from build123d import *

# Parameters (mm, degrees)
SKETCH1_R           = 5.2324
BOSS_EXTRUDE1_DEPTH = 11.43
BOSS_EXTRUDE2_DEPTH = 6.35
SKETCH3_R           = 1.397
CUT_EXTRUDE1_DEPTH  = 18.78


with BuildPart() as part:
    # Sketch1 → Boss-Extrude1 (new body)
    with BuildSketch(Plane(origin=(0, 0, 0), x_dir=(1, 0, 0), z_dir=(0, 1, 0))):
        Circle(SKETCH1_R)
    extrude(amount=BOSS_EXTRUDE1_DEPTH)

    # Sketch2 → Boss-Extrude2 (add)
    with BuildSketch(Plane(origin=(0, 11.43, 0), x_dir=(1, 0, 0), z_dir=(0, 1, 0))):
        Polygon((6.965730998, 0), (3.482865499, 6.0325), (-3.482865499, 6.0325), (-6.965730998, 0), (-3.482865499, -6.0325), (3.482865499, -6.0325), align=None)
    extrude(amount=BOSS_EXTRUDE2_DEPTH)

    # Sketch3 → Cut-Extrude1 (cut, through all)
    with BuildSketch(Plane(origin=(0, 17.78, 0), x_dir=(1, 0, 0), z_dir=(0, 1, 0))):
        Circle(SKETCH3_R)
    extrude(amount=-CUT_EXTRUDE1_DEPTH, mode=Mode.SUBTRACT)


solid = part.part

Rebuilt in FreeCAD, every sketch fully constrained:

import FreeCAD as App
import Part
import Sketcher
Q = App.Units.Quantity


def add_polygon(sketch, points):
    """Adds a closed chain of lines whose ends are joined by coincident constraints."""
    first, n = sketch.GeometryCount, len(points)
    for a, b in zip(points, points[1:] + points[:1]):
        sketch.addGeometry(Part.LineSegment(App.Vector(*a, 0), App.Vector(*b, 0)), False)
    for i in range(n):
        sketch.addConstraint(Sketcher.Constraint("Coincident", first + i, 2, first + (i + 1) % n, 1))

doc = App.newDocument("Part")
body = doc.addObject("PartDesign::Body", "Body")

sketch1 = body.newObject("Sketcher::SketchObject", "Sketch")
sketch1.AttachmentSupport = (doc.getObject("XZ_Plane"), [""])
sketch1.MapMode = "FlatFace"
sketch1.addGeometry(Part.Circle(App.Vector(0, 0, 0), App.Vector(0, 0, 1), 5), False)
sketch1.addConstraint([
    Sketcher.Constraint("Coincident", 0, 3, -1, 1),
    Sketcher.Constraint("Diameter", 0, Q("0.412 in")),
])
pad1 = body.newObject("PartDesign::Pad", "Pad")
pad1.Profile = sketch1
pad1.Length = Q("0.45 in")
pad1.Reversed = True

sketch2 = body.newObject("Sketcher::SketchObject", "Sketch001")
sketch2.AttachmentSupport = (doc.getObject("XZ_Plane"), [""])
sketch2.MapMode = "FlatFace"
sketch2.AttachmentOffset = App.Placement(App.Vector(0, 0, -0.45 * 25.4), App.Rotation())
add_polygon(sketch2, [(7, 0), (3, -6), (-3, -6), (-7, 0), (-3, 6), (3, 6)])
sketch2.addConstraint([
    Sketcher.Constraint("Horizontal", 1),
    Sketcher.Constraint("Horizontal", 4),
    Sketcher.Constraint("Symmetric", 0, 2, 3, 2, -1, 1),
    Sketcher.Constraint("Symmetric", 2, 2, 5, 2, -1, 1),
    Sketcher.Constraint("PointOnObject", 2, 2, -1),
    Sketcher.Constraint("Parallel", 2, 5),
    Sketcher.Constraint("Vertical", 1, 2, 3, 2),
    Sketcher.Constraint("Angle", 0, Q("-120 deg")),
    Sketcher.Constraint("DistanceY", 1, 2, 3, 2, Q("0.475 in")),
    Sketcher.Constraint("DistanceX", 1, 2, 1, 1, 6.965731),
])
pad2 = body.newObject("PartDesign::Pad", "Pad001")
pad2.Profile = sketch2
pad2.Length = Q("0.25 in")
pad2.Reversed = True

sketch3 = body.newObject("Sketcher::SketchObject", "Sketch002")
sketch3.AttachmentSupport = (doc.getObject("XZ_Plane"), [""])
sketch3.MapMode = "FlatFace"
sketch3.AttachmentOffset = App.Placement(App.Vector(0, 0, -0.7 * 25.4), App.Rotation())
sketch3.addGeometry(Part.Circle(App.Vector(0, 0, 0), App.Vector(0, 0, 1), 1.4), False)
sketch3.addConstraint([
    Sketcher.Constraint("Coincident", 0, 3, -1, 1),
    Sketcher.Constraint("Diameter", 0, Q("0.11 in")),
])
pocket1 = body.newObject("PartDesign::Pocket", "Pocket")
pocket1.Profile = sketch3
pocket1.Type = "ThroughAll"
pocket1.Reversed = True

doc.recompute()
